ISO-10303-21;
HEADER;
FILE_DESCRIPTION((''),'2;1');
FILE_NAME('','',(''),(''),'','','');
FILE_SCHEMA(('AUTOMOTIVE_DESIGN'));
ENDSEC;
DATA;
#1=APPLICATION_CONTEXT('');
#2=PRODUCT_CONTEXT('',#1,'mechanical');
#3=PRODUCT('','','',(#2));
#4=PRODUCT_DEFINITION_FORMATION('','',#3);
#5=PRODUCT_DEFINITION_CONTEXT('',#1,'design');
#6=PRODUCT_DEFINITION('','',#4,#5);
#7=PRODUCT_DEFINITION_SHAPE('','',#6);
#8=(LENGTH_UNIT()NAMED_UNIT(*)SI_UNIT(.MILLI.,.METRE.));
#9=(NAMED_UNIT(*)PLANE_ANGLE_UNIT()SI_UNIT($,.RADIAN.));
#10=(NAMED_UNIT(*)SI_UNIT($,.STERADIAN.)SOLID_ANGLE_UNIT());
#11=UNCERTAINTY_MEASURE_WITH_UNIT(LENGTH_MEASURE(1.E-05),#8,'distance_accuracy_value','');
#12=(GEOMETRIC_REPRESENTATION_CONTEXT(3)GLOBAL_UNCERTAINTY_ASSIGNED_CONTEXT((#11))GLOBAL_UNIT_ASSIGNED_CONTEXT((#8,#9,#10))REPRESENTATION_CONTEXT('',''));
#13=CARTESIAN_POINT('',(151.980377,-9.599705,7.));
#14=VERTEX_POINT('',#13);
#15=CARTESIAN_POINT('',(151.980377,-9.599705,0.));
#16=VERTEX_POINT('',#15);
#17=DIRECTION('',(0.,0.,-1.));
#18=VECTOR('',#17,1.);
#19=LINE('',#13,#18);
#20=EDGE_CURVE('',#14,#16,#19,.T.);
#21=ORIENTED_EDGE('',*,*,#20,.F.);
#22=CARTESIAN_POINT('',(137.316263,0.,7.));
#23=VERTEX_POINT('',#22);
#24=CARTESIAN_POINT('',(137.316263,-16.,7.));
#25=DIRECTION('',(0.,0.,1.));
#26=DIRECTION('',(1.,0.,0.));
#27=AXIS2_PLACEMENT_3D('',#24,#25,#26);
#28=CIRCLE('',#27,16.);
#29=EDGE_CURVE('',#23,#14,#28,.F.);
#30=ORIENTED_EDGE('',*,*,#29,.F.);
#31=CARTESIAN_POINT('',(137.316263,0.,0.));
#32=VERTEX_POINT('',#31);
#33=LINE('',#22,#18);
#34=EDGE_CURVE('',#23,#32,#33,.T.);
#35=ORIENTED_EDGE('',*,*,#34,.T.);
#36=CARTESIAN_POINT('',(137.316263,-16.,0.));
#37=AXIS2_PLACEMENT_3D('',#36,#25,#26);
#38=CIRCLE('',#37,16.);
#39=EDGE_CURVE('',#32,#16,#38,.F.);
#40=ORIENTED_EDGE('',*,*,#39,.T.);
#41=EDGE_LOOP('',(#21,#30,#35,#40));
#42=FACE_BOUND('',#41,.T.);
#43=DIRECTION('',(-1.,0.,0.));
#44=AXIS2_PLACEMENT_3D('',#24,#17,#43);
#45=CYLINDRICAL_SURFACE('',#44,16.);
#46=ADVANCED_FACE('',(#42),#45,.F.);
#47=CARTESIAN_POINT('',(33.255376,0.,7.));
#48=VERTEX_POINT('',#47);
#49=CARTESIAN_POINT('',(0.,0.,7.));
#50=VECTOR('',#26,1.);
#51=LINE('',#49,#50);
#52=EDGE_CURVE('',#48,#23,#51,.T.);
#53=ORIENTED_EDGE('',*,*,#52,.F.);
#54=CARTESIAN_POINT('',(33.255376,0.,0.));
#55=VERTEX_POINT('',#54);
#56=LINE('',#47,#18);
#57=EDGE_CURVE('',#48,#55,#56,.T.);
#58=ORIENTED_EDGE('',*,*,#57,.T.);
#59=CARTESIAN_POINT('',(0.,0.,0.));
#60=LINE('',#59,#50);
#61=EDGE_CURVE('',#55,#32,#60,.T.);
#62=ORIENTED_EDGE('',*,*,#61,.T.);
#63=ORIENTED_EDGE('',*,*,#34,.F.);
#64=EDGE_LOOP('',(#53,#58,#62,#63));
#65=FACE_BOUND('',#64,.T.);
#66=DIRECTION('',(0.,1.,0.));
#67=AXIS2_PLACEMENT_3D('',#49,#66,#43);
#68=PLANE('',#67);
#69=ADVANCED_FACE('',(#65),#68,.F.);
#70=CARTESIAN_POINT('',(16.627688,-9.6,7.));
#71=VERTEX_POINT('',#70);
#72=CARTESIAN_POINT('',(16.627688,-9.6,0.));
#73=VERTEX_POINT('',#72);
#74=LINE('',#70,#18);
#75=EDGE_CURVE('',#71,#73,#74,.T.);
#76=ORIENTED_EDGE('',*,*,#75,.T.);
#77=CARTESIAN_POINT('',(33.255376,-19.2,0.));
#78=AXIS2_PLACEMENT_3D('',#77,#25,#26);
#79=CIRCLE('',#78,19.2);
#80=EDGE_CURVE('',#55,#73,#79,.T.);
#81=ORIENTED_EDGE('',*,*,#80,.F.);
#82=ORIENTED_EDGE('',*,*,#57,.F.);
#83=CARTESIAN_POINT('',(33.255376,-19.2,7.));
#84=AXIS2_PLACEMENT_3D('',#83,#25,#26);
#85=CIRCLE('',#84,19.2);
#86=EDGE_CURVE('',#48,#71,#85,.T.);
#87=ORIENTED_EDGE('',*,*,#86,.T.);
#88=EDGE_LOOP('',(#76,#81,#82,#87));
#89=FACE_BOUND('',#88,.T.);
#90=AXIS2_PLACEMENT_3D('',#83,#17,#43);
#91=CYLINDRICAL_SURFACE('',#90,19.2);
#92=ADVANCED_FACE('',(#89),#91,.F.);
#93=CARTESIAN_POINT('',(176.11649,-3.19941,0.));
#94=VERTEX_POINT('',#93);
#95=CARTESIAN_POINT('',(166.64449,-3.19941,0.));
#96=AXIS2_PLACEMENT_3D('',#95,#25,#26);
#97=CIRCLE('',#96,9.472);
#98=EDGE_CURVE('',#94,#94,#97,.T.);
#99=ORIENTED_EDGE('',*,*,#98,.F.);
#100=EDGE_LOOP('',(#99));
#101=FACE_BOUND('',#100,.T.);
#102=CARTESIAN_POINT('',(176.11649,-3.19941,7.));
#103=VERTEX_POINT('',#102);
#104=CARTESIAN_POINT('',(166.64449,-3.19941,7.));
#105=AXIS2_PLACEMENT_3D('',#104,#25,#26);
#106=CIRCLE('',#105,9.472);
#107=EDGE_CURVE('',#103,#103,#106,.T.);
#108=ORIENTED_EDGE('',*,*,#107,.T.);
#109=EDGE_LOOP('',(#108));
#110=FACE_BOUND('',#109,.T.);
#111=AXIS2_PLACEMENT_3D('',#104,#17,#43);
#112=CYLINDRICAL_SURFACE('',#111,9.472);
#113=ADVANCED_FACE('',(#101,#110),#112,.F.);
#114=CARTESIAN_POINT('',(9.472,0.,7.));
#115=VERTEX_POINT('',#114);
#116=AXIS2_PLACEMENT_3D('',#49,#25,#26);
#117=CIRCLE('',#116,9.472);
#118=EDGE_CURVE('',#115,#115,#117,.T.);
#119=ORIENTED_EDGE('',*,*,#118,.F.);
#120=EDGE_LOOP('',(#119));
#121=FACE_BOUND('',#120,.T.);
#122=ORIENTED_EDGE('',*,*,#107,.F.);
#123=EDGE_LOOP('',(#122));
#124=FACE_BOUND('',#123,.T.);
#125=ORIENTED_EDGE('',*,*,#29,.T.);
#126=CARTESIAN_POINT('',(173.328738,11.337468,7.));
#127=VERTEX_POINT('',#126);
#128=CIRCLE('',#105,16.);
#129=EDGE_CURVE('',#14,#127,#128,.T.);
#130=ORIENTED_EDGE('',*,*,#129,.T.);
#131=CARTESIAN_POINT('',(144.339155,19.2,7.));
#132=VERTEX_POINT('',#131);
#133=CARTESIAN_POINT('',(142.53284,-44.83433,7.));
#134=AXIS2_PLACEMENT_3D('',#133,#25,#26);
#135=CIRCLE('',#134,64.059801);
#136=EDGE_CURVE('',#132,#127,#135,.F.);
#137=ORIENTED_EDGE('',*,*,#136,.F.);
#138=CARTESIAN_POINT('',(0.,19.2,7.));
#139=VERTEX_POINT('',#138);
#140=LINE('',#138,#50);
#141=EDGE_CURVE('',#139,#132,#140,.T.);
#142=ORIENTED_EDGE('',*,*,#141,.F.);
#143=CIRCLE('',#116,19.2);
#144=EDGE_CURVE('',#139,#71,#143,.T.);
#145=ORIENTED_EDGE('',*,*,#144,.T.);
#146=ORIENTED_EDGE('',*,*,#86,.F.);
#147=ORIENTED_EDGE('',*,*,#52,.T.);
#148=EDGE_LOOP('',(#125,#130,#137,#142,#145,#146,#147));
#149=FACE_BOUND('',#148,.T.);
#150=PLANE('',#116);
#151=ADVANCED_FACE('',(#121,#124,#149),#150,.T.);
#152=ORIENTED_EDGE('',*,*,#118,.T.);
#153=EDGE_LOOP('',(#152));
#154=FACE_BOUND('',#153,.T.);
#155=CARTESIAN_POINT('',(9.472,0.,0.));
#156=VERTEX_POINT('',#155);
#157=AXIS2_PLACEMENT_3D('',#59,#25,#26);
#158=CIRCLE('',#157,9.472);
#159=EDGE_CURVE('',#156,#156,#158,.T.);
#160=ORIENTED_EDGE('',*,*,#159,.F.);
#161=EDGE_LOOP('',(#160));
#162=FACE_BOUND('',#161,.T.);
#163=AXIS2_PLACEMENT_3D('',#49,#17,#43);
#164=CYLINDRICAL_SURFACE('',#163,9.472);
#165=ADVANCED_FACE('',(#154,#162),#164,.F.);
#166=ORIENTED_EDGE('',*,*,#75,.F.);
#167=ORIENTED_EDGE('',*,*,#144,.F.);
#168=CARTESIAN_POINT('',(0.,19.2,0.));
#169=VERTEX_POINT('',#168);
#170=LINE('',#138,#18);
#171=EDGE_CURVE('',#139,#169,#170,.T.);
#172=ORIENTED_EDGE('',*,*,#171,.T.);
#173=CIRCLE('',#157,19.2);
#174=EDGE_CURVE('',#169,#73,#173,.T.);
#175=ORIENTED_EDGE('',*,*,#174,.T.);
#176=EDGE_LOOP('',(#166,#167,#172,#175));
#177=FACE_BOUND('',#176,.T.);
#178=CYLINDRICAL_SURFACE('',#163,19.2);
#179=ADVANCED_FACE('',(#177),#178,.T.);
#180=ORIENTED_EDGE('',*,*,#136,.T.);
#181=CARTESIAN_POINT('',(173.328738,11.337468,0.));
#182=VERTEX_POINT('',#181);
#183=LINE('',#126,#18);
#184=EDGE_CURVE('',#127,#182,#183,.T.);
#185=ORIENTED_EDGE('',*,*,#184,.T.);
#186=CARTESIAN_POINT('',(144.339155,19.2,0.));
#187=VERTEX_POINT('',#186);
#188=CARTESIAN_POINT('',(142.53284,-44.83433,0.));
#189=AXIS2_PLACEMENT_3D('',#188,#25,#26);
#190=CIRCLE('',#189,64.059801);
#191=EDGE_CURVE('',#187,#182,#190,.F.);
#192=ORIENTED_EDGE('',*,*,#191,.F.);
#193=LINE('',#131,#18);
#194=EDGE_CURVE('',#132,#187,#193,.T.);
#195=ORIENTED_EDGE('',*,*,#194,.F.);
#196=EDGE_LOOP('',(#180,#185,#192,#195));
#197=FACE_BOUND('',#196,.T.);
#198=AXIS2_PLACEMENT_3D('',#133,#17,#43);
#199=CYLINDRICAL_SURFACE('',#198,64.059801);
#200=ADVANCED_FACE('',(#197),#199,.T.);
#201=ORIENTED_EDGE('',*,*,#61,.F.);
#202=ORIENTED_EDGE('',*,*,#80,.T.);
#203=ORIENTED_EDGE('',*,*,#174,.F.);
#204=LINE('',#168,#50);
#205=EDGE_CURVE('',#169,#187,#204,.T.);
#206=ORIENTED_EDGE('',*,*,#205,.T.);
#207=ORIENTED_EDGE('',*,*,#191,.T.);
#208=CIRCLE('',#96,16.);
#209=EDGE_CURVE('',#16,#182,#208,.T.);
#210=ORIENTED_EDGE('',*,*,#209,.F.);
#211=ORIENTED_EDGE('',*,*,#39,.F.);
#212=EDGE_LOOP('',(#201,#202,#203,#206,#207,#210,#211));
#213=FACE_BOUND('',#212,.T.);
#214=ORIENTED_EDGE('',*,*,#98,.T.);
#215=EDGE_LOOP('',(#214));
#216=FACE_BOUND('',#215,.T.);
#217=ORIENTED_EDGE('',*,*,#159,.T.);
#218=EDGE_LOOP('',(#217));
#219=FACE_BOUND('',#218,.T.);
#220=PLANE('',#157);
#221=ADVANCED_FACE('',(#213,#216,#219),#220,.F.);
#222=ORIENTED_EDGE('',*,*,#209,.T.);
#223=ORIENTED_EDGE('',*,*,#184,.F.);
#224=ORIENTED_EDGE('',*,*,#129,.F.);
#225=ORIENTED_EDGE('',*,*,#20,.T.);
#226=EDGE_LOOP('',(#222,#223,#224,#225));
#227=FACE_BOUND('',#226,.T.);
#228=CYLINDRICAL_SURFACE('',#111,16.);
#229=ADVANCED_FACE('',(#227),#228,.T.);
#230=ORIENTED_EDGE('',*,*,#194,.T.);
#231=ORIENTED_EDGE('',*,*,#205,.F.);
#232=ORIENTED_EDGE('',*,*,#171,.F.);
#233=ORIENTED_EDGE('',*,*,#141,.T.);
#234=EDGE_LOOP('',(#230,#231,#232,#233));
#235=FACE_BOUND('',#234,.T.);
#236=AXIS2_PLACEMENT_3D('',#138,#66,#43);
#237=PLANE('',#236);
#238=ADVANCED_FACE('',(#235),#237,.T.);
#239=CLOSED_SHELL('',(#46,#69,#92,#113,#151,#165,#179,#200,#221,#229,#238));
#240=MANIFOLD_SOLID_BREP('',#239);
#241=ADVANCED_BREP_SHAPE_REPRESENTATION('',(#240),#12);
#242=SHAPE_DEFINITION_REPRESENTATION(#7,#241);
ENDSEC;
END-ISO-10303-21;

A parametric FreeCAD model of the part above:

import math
import FreeCAD as App
import Part
import Sketcher
from FreeCAD import Vector
Q = App.Units.Quantity

doc = App.newDocument("Part")
body = doc.addObject("PartDesign::Body", "Body")

sketch1 = doc.addObject("Sketcher::SketchObject", "Sketch")
body.addObject(sketch1)
sketch1.AttachmentSupport = (doc.XY_Plane, [""])
sketch1.MapMode = "FlatFace"
sketch1.addGeometry([
    Part.LineSegment(Vector(144, 19, 0), Vector(0, 19, 0)),
    Part.ArcOfCircle(Part.Circle(Vector(0, 0, 0), Vector(0, 0, 1), 19), math.radians(90), math.radians(330)),
    Part.ArcOfCircle(Part.Circle(Vector(33, -19, 0), Vector(0, 0, 1), 19), math.radians(90), math.radians(150)),
    Part.LineSegment(Vector(33, 0, 0), Vector(137, 0, 0)),
    Part.ArcOfCircle(Part.Circle(Vector(137, -16, 0), Vector(0, 0, 1), 16), math.radians(24), math.radians(90)),
    Part.ArcOfCircle(Part.Circle(Vector(167, -3, 0), Vector(0, 0, 1), 16), math.radians(-156), math.radians(65)),
    Part.ArcOfCircle(Part.Circle(Vector(143, -45, 0), Vector(0, 0, 1), 64), math.radians(61), math.radians(88)),
    Part.Circle(Vector(0, 0, 0), Vector(0, 0, 1), 9),
    Part.Circle(Vector(167, -3, 0), Vector(0, 0, 1), 9),
], False)
sketch1.addConstraint([
    Sketcher.Constraint("Tangent", 0, 2, 1, 1),
    Sketcher.Constraint("Tangent", 1, 2, 2, 2),
    Sketcher.Constraint("Tangent", 2, 1, 3, 1),
    Sketcher.Constraint("Tangent", 3, 2, 4, 2),
    Sketcher.Constraint("Tangent", 4, 1, 5, 1),
    Sketcher.Constraint("Coincident", 5, 2, 6, 1),
    Sketcher.Constraint("Coincident", 6, 2, 0, 1),
    Sketcher.Constraint("Horizontal", 0),
    Sketcher.Constraint("Horizontal", 3),
    Sketcher.Constraint("Coincident", 1, 3, -1, 1),
    Sketcher.Constraint("Coincident", 7, 3, -1, 1),
    Sketcher.Constraint("Coincident", 8, 3, 5, 3),
    Sketcher.Constraint("Equal", 1, 2),
    Sketcher.Constraint("Equal", 4, 5),
    Sketcher.Constraint("Equal", 7, 8),
    Sketcher.Constraint("PointOnObject", 2, 1, -1),
    Sketcher.Constraint("Radius", 4, Q("16 mm")),
    Sketcher.Constraint("Radius", 1, Q("19.2 mm")),
    Sketcher.Constraint("Diameter", 7, Q("18.944 mm")),
    Sketcher.Constraint("Radius", 6, Q("64.059801 mm")),
    Sketcher.Constraint("DistanceX", 0, 2, 0, 1, Q("144.339155 mm")),
    Sketcher.Constraint("DistanceX", 3, 1, 3, 2, Q("104.060887 mm")),
    Sketcher.Constraint("DistanceX", -1, 1, 5, 3, Q("166.64449 mm")),
    Sketcher.Constraint("DistanceX", -1, 1, 6, 3, Q("142.53284 mm")),
])
pad1 = doc.addObject("PartDesign::Pad", "Pad")
body.addObject(pad1)
pad1.Profile = sketch1
pad1.Length = 7

doc.recompute()
